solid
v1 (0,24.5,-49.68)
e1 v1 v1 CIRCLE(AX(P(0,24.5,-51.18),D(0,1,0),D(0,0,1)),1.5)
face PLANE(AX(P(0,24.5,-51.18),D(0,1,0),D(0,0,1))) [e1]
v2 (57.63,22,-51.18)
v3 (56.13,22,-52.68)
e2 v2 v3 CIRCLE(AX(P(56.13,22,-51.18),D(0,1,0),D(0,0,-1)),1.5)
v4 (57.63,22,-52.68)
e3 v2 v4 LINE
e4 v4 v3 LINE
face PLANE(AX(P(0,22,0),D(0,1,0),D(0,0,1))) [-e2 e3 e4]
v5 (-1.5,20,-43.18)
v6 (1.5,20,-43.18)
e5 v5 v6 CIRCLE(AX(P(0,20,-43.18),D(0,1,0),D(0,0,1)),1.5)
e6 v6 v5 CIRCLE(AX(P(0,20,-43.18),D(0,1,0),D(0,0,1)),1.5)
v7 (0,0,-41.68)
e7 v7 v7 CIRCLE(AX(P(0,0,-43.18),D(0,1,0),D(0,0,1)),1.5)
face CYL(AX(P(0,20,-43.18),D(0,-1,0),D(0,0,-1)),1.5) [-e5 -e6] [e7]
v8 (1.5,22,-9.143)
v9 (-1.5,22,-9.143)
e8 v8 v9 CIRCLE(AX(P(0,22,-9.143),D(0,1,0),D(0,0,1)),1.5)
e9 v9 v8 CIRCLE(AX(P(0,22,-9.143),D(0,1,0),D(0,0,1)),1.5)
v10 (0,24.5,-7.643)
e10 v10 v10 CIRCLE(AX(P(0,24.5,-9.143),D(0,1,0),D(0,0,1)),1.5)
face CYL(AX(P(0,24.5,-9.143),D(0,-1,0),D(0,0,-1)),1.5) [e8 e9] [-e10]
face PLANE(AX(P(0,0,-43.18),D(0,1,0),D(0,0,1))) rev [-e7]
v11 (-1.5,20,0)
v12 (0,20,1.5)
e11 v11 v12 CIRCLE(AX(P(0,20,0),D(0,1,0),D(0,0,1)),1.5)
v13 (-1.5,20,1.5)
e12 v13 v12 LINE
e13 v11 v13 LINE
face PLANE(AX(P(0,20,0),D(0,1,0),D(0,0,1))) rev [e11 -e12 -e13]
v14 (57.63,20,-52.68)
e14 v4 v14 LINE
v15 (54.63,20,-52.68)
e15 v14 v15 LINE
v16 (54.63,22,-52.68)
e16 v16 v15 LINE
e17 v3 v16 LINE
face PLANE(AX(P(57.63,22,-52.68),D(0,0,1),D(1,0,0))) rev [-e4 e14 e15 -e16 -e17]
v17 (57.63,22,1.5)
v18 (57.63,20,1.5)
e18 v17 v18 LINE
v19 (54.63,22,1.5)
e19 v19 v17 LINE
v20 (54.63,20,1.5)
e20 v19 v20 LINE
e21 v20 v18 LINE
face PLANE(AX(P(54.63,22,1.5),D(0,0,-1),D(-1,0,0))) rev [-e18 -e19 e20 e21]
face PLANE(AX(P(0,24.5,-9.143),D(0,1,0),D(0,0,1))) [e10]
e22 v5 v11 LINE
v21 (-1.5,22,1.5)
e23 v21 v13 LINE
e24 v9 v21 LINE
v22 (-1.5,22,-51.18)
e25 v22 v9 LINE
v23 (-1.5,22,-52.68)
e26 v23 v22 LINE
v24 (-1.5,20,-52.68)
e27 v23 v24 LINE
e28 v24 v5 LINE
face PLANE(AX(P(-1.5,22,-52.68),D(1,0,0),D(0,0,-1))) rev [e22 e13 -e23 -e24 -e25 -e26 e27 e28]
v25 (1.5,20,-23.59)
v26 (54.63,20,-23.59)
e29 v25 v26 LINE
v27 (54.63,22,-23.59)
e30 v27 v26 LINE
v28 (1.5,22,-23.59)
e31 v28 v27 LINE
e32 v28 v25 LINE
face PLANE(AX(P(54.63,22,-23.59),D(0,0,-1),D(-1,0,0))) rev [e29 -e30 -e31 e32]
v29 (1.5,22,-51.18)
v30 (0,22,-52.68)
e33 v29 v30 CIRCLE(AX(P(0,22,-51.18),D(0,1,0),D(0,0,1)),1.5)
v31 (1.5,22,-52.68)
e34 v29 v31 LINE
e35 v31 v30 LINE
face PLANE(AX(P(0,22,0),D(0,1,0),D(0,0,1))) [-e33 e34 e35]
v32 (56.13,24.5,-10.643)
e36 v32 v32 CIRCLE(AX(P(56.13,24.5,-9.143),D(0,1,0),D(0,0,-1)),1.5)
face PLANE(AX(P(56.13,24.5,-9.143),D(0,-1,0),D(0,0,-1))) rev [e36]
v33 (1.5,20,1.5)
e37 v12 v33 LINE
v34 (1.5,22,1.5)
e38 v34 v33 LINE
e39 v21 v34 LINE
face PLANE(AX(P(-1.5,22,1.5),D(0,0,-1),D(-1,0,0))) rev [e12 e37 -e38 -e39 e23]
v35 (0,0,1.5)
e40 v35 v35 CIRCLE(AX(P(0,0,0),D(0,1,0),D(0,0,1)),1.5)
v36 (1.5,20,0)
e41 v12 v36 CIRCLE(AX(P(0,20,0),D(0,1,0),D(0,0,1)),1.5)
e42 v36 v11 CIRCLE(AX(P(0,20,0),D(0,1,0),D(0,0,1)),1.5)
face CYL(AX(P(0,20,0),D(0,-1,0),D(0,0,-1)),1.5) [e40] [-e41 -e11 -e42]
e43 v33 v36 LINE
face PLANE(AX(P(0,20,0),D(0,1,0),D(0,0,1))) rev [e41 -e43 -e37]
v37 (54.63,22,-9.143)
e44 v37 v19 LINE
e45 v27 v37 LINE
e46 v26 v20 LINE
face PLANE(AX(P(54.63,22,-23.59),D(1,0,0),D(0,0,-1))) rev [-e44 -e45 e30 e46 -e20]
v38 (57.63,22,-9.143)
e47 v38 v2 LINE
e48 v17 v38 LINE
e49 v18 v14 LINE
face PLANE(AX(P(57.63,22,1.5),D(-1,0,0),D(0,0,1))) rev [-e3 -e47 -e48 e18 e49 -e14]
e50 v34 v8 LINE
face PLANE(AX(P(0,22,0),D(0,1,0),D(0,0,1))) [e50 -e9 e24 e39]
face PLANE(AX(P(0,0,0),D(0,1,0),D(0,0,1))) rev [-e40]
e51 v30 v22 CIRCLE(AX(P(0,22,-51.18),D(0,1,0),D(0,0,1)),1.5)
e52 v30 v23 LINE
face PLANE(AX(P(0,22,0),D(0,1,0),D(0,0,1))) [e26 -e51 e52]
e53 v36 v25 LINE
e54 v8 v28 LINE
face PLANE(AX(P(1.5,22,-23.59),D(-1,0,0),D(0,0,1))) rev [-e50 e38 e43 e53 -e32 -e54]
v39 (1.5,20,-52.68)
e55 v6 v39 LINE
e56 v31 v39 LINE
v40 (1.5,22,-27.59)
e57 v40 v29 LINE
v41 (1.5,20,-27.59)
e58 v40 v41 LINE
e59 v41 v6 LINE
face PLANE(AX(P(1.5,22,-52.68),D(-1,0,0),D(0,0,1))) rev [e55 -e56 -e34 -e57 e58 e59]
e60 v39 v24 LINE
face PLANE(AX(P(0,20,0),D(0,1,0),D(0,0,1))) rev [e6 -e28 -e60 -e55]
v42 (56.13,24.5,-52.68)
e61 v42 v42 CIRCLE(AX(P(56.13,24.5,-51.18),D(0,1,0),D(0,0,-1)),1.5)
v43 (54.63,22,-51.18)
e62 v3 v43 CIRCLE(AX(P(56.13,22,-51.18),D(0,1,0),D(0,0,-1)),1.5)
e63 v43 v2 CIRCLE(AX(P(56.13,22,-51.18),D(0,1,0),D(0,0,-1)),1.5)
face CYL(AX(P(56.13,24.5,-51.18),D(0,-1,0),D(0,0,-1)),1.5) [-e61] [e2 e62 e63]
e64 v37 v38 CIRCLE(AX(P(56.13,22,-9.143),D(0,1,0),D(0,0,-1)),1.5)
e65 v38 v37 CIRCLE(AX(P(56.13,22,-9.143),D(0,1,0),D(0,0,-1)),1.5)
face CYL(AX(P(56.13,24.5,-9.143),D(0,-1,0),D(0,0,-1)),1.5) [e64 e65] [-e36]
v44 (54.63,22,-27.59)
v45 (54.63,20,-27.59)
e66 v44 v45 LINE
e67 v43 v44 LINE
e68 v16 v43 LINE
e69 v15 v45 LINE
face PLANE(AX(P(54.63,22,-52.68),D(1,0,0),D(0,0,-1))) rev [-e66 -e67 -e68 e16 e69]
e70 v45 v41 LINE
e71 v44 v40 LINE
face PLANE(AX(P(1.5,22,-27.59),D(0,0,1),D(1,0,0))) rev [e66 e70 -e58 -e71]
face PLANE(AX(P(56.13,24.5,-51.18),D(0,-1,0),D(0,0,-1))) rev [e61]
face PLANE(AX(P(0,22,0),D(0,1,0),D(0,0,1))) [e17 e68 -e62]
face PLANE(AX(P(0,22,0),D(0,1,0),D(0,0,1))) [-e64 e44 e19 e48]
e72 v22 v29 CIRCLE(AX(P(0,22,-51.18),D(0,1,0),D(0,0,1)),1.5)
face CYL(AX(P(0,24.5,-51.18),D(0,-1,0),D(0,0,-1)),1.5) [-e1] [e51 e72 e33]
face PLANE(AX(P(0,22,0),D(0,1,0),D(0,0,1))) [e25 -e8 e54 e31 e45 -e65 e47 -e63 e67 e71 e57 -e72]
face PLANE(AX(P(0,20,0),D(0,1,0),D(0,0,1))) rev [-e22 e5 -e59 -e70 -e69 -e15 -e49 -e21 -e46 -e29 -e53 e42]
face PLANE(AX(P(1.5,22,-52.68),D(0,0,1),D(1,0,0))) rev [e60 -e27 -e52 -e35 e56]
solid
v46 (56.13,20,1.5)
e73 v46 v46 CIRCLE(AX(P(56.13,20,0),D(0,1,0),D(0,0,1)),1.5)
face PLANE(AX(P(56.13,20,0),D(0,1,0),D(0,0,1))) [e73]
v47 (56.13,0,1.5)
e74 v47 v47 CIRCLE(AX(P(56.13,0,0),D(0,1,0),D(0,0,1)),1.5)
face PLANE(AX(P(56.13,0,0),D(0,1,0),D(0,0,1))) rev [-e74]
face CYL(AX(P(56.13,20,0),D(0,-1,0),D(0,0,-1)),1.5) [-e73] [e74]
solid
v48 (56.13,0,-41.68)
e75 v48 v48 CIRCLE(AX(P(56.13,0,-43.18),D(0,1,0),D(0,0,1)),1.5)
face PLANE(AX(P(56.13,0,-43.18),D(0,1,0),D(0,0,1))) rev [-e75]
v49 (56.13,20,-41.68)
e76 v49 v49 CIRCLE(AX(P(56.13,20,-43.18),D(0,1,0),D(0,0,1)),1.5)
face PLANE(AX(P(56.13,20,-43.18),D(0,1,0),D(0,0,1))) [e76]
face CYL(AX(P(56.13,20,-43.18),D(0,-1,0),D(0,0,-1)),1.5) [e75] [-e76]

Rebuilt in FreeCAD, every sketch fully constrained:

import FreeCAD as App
import Part
import Sketcher
Q = App.Units.Quantity

doc = App.newDocument("Part")
body = doc.addObject("PartDesign::Body", "Body")

# Sketch on XZ plane
sketch1 = doc.addObject("Sketcher::SketchObject", "Sketch")
body.addObject(sketch1)
sketch1.AttachmentSupport = (doc.XZ_Plane, [""])
sketch1.MapMode = "FlatFace"
sketch1.addGeometry(Part.Circle(App.Vector(0, 0, 0), App.Vector(0, 0, 1), 1.5), False)
sketch1.addConstraint(Sketcher.Constraint("Coincident", 0, 3, -1, 1))
sketch1.addConstraint(Sketcher.Constraint("Diameter", 0, Q("3 mm")))
pad1 = doc.addObject("PartDesign::Pad", "Pad")
body.addObject(pad1)
pad1.Profile = sketch1
pad1.Length = 20
pad1.Reversed = True
body2 = doc.addObject("PartDesign::Body", "Body001")

# Sketch on XZ plane
sketch2 = doc.addObject("Sketcher::SketchObject", "Sketch001")
body2.addObject(sketch2)
sketch2.AttachmentSupport = (doc.getObject("XZ_Plane001"), [""])
sketch2.MapMode = "FlatFace"
sketch2.addGeometry(Part.Circle(App.Vector(0, -43.2, 0), App.Vector(0, 0, 1), 1.5), False)
sketch2.addConstraint(Sketcher.Constraint("PointOnObject", 0, 3, -2))
sketch2.addConstraint(Sketcher.Constraint("Diameter", 0, Q("3 mm")))
sketch2.addConstraint(Sketcher.Constraint("DistanceY", 0, 3, -1, 1, Q("43.18 mm")))
pad2 = doc.addObject("PartDesign::Pad", "Pad001")
body2.addObject(pad2)
pad2.Profile = sketch2
pad2.Length = 20
pad2.Reversed = True
body3 = doc.addObject("PartDesign::Body", "Body002")

# Sketch on XZ plane
sketch3 = doc.addObject("Sketcher::SketchObject", "Sketch002")
body3.addObject(sketch3)
sketch3.AttachmentSupport = (doc.getObject("XZ_Plane002"), [""])
sketch3.MapMode = "FlatFace"
sketch3.addGeometry(Part.Circle(App.Vector(56.1, -43.2, 0), App.Vector(0, 0, 1), 1.5), False)
sketch3.addConstraint(Sketcher.Constraint("Diameter", 0, Q("3 mm")))
sketch3.addConstraint(Sketcher.Constraint("DistanceX", -1, 1, 0, 3, Q("56.13 mm")))
sketch3.addConstraint(Sketcher.Constraint("DistanceY", 0, 3, -1, 1, Q("43.18 mm")))
pad3 = doc.addObject("PartDesign::Pad", "Pad002")
body3.addObject(pad3)
pad3.Profile = sketch3
pad3.Length = 20
pad3.Reversed = True
body4 = doc.addObject("PartDesign::Body", "Body003")

# Sketch on XZ plane
sketch4 = doc.addObject("Sketcher::SketchObject", "Sketch003")
body4.addObject(sketch4)
sketch4.AttachmentSupport = (doc.getObject("XZ_Plane003"), [""])
sketch4.MapMode = "FlatFace"
sketch4.addGeometry(Part.Circle(App.Vector(56.1, 0, 0), App.Vector(0, 0, 1), 1.5), False)
sketch4.addConstraint(Sketcher.Constraint("PointOnObject", 0, 3, -1))
sketch4.addConstraint(Sketcher.Constraint("Diameter", 0, Q("3 mm")))
sketch4.addConstraint(Sketcher.Constraint("DistanceX", -1, 1, 0, 3, Q("56.13 mm")))
pad4 = doc.addObject("PartDesign::Pad", "Pad003")
body4.addObject(pad4)
pad4.Profile = sketch4
pad4.Length = 20
pad4.Reversed = True
body.AllowCompound = True
doc.recompute()

boolean = doc.addObject("PartDesign::Boolean", "Boolean")
body.addObject(boolean)
boolean.Type = "Fuse"
boolean.addObjects([body2])

# Sketch on XZ plane
sketch5 = doc.addObject("Sketcher::SketchObject", "Sketch004")
body.addObject(sketch5)
sketch5.AttachmentSupport = (doc.XZ_Plane, [""])
sketch5.MapMode = "FlatFace"
sketch5.AttachmentOffset = App.Placement(App.Vector(0, 0, -20), App.Rotation())
sketch5.addGeometry(Part.LineSegment(App.Vector(-1.5, -52.7, 0), App.Vector(-1.5, 1.5, 0)), False)
sketch5.addGeometry(Part.LineSegment(App.Vector(-1.5, 1.5, 0), App.Vector(1.5, 1.5, 0)), False)
sketch5.addGeometry(Part.LineSegment(App.Vector(1.5, 1.5, 0), App.Vector(1.5, -23.6, 0)), False)
sketch5.addGeometry(Part.LineSegment(App.Vector(1.5, -23.6, 0), App.Vector(54.6, -23.6, 0)), False)
sketch5.addGeometry(Part.LineSegment(App.Vector(54.6, -23.6, 0), App.Vector(54.6, 1.5, 0)), False)
sketch5.addGeometry(Part.LineSegment(App.Vector(54.6, 1.5, 0), App.Vector(57.6, 1.5, 0)), False)
sketch5.addGeometry(Part.LineSegment(App.Vector(57.6, 1.5, 0), App.Vector(57.6, -52.7, 0)), False)
sketch5.addGeometry(Part.LineSegment(App.Vector(57.6, -52.7, 0), App.Vector(54.6, -52.7, 0)), False)
sketch5.addGeometry(Part.LineSegment(App.Vector(54.6, -52.7, 0), App.Vector(54.6, -27.6, 0)), False)
sketch5.addGeometry(Part.LineSegment(App.Vector(54.6, -27.6, 0), App.Vector(1.5, -27.6, 0)), False)
sketch5.addGeometry(Part.LineSegment(App.Vector(1.5, -27.6, 0), App.Vector(1.5, -52.7, 0)), False)
sketch5.addGeometry(Part.LineSegment(App.Vector(1.5, -52.7, 0), App.Vector(-1.5, -52.7, 0)), False)
sketch5.addConstraint(Sketcher.Constraint("Coincident", 0, 2, 1, 1))
sketch5.addConstraint(Sketcher.Constraint("Coincident", 1, 2, 2, 1))
sketch5.addConstraint(Sketcher.Constraint("Coincident", 2, 2, 3, 1))
sketch5.addConstraint(Sketcher.Constraint("Coincident", 3, 2, 4, 1))
sketch5.addConstraint(Sketcher.Constraint("Coincident", 4, 2, 5, 1))
sketch5.addConstraint(Sketcher.Constraint("Coincident", 5, 2, 6, 1))
sketch5.addConstraint(Sketcher.Constraint("Coincident", 6, 2, 7, 1))
sketch5.addConstraint(Sketcher.Constraint("Coincident", 7, 2, 8, 1))
sketch5.addConstraint(Sketcher.Constraint("Coincident", 8, 2, 9, 1))
sketch5.addConstraint(Sketcher.Constraint("Coincident", 9, 2, 10, 1))
sketch5.addConstraint(Sketcher.Constraint("Coincident", 10, 2, 11, 1))
sketch5.addConstraint(Sketcher.Constraint("Coincident", 11, 2, 0, 1))
sketch5.addConstraint(Sketcher.Constraint("Vertical", 0))
sketch5.addConstraint(Sketcher.Constraint("Horizontal", 1))
sketch5.addConstraint(Sketcher.Constraint("Vertical", 2))
sketch5.addConstraint(Sketcher.Constraint("Horizontal", 3))
sketch5.addConstraint(Sketcher.Constraint("Vertical", 4))
sketch5.addConstraint(Sketcher.Constraint("Horizontal", 5))
sketch5.addConstraint(Sketcher.Constraint("Vertical", 6))
sketch5.addConstraint(Sketcher.Constraint("Horizontal", 7))
sketch5.addConstraint(Sketcher.Constraint("Vertical", 8))
sketch5.addConstraint(Sketcher.Constraint("Horizontal", 9))
sketch5.addConstraint(Sketcher.Constraint("Vertical", 10))
sketch5.addConstraint(Sketcher.Constraint("Horizontal", 11))
sketch5.addConstraint(Sketcher.Constraint("Horizontal", 1, 2, 4, 2))
sketch5.addConstraint(Sketcher.Constraint("Horizontal", 7, 2, 10, 2))
sketch5.addConstraint(Sketcher.Constraint("Vertical", 4, 2, 7, 2))
sketch5.addConstraint(Sketcher.Constraint("Vertical", 2, 2, 9, 2))
sketch5.addConstraint(Sketcher.Constraint("Equal", 1, 5))
sketch5.addConstraint(Sketcher.Constraint("Equal", 4, 8))
sketch5.addConstraint(Sketcher.Constraint("DistanceX", 1, 1, 1, 2, Q("3 mm")))
sketch5.addConstraint(Sketcher.Constraint("DistanceY", 8, 2, 3, 2, Q("4 mm")))
sketch5.addConstraint(Sketcher.Constraint("DistanceX", 3, 1, 3, 2, Q("53.13 mm")))
sketch5.addConstraint(Sketcher.Constraint("DistanceY", 0, 1, 0, 2, Q("54.18 mm")))
sketch5.addConstraint(Sketcher.Constraint("DistanceX", 0, 2, -1, 1, Q("1.5 mm")))
sketch5.addConstraint(Sketcher.Constraint("DistanceY", -1, 1, 0, 2, Q("1.5 mm")))
pad5 = doc.addObject("PartDesign::Pad", "Pad004")
body.addObject(pad5)
pad5.Profile = sketch5
pad5.Length = 2
pad5.Reversed = True

# Sketch on XZ plane
sketch6 = doc.addObject("Sketcher::SketchObject", "Sketch005")
body.addObject(sketch6)
sketch6.AttachmentSupport = (doc.XZ_Plane, [""])
sketch6.MapMode = "FlatFace"
sketch6.AttachmentOffset = App.Placement(App.Vector(0, 0, -22), App.Rotation())
sketch6.addGeometry(Part.Circle(App.Vector(0, -51.2, 0), App.Vector(0, 0, 1), 1.5), False)
sketch6.addGeometry(Part.Circle(App.Vector(0, -9.1, 0), App.Vector(0, 0, 1), 1.5), False)
sketch6.addGeometry(Part.Circle(App.Vector(56.1, -9.1, 0), App.Vector(0, 0, 1), 1.5), False)
sketch6.addGeometry(Part.Circle(App.Vector(56.1, -51.2, 0), App.Vector(0, 0, 1), 1.5), False)
sketch6.addConstraint(Sketcher.Constraint("Equal", 0, 1))
sketch6.addConstraint(Sketcher.Constraint("Equal", 1, 2))
sketch6.addConstraint(Sketcher.Constraint("Equal", 2, 3))
sketch6.addConstraint(Sketcher.Constraint("PointOnObject", 0, 3, -2))
sketch6.addConstraint(Sketcher.Constraint("PointOnObject", 1, 3, -2))
sketch6.addConstraint(Sketcher.Constraint("Horizontal", 1, 3, 2, 3))
sketch6.addConstraint(Sketcher.Constraint("Horizontal", 0, 3, 3, 3))
sketch6.addConstraint(Sketcher.Constraint("Vertical", 2, 3, 3, 3))
sketch6.addConstraint(Sketcher.Constraint("Diameter", 0, Q("3 mm")))
sketch6.addConstraint(Sketcher.Constraint("DistanceY", 0, 3, -1, 1, Q("51.18 mm")))
sketch6.addConstraint(Sketcher.Constraint("DistanceX", -1, 1, 2, 3, Q("56.13 mm")))
sketch6.addConstraint(Sketcher.Constraint("DistanceY", 1, 3, -1, 1, Q("9.143 mm")))
pad6 = doc.addObject("PartDesign::Pad", "Pad005")
body.addObject(pad6)
pad6.Profile = sketch6
pad6.Length = 2.5
pad6.Reversed = True

doc.recompute()
